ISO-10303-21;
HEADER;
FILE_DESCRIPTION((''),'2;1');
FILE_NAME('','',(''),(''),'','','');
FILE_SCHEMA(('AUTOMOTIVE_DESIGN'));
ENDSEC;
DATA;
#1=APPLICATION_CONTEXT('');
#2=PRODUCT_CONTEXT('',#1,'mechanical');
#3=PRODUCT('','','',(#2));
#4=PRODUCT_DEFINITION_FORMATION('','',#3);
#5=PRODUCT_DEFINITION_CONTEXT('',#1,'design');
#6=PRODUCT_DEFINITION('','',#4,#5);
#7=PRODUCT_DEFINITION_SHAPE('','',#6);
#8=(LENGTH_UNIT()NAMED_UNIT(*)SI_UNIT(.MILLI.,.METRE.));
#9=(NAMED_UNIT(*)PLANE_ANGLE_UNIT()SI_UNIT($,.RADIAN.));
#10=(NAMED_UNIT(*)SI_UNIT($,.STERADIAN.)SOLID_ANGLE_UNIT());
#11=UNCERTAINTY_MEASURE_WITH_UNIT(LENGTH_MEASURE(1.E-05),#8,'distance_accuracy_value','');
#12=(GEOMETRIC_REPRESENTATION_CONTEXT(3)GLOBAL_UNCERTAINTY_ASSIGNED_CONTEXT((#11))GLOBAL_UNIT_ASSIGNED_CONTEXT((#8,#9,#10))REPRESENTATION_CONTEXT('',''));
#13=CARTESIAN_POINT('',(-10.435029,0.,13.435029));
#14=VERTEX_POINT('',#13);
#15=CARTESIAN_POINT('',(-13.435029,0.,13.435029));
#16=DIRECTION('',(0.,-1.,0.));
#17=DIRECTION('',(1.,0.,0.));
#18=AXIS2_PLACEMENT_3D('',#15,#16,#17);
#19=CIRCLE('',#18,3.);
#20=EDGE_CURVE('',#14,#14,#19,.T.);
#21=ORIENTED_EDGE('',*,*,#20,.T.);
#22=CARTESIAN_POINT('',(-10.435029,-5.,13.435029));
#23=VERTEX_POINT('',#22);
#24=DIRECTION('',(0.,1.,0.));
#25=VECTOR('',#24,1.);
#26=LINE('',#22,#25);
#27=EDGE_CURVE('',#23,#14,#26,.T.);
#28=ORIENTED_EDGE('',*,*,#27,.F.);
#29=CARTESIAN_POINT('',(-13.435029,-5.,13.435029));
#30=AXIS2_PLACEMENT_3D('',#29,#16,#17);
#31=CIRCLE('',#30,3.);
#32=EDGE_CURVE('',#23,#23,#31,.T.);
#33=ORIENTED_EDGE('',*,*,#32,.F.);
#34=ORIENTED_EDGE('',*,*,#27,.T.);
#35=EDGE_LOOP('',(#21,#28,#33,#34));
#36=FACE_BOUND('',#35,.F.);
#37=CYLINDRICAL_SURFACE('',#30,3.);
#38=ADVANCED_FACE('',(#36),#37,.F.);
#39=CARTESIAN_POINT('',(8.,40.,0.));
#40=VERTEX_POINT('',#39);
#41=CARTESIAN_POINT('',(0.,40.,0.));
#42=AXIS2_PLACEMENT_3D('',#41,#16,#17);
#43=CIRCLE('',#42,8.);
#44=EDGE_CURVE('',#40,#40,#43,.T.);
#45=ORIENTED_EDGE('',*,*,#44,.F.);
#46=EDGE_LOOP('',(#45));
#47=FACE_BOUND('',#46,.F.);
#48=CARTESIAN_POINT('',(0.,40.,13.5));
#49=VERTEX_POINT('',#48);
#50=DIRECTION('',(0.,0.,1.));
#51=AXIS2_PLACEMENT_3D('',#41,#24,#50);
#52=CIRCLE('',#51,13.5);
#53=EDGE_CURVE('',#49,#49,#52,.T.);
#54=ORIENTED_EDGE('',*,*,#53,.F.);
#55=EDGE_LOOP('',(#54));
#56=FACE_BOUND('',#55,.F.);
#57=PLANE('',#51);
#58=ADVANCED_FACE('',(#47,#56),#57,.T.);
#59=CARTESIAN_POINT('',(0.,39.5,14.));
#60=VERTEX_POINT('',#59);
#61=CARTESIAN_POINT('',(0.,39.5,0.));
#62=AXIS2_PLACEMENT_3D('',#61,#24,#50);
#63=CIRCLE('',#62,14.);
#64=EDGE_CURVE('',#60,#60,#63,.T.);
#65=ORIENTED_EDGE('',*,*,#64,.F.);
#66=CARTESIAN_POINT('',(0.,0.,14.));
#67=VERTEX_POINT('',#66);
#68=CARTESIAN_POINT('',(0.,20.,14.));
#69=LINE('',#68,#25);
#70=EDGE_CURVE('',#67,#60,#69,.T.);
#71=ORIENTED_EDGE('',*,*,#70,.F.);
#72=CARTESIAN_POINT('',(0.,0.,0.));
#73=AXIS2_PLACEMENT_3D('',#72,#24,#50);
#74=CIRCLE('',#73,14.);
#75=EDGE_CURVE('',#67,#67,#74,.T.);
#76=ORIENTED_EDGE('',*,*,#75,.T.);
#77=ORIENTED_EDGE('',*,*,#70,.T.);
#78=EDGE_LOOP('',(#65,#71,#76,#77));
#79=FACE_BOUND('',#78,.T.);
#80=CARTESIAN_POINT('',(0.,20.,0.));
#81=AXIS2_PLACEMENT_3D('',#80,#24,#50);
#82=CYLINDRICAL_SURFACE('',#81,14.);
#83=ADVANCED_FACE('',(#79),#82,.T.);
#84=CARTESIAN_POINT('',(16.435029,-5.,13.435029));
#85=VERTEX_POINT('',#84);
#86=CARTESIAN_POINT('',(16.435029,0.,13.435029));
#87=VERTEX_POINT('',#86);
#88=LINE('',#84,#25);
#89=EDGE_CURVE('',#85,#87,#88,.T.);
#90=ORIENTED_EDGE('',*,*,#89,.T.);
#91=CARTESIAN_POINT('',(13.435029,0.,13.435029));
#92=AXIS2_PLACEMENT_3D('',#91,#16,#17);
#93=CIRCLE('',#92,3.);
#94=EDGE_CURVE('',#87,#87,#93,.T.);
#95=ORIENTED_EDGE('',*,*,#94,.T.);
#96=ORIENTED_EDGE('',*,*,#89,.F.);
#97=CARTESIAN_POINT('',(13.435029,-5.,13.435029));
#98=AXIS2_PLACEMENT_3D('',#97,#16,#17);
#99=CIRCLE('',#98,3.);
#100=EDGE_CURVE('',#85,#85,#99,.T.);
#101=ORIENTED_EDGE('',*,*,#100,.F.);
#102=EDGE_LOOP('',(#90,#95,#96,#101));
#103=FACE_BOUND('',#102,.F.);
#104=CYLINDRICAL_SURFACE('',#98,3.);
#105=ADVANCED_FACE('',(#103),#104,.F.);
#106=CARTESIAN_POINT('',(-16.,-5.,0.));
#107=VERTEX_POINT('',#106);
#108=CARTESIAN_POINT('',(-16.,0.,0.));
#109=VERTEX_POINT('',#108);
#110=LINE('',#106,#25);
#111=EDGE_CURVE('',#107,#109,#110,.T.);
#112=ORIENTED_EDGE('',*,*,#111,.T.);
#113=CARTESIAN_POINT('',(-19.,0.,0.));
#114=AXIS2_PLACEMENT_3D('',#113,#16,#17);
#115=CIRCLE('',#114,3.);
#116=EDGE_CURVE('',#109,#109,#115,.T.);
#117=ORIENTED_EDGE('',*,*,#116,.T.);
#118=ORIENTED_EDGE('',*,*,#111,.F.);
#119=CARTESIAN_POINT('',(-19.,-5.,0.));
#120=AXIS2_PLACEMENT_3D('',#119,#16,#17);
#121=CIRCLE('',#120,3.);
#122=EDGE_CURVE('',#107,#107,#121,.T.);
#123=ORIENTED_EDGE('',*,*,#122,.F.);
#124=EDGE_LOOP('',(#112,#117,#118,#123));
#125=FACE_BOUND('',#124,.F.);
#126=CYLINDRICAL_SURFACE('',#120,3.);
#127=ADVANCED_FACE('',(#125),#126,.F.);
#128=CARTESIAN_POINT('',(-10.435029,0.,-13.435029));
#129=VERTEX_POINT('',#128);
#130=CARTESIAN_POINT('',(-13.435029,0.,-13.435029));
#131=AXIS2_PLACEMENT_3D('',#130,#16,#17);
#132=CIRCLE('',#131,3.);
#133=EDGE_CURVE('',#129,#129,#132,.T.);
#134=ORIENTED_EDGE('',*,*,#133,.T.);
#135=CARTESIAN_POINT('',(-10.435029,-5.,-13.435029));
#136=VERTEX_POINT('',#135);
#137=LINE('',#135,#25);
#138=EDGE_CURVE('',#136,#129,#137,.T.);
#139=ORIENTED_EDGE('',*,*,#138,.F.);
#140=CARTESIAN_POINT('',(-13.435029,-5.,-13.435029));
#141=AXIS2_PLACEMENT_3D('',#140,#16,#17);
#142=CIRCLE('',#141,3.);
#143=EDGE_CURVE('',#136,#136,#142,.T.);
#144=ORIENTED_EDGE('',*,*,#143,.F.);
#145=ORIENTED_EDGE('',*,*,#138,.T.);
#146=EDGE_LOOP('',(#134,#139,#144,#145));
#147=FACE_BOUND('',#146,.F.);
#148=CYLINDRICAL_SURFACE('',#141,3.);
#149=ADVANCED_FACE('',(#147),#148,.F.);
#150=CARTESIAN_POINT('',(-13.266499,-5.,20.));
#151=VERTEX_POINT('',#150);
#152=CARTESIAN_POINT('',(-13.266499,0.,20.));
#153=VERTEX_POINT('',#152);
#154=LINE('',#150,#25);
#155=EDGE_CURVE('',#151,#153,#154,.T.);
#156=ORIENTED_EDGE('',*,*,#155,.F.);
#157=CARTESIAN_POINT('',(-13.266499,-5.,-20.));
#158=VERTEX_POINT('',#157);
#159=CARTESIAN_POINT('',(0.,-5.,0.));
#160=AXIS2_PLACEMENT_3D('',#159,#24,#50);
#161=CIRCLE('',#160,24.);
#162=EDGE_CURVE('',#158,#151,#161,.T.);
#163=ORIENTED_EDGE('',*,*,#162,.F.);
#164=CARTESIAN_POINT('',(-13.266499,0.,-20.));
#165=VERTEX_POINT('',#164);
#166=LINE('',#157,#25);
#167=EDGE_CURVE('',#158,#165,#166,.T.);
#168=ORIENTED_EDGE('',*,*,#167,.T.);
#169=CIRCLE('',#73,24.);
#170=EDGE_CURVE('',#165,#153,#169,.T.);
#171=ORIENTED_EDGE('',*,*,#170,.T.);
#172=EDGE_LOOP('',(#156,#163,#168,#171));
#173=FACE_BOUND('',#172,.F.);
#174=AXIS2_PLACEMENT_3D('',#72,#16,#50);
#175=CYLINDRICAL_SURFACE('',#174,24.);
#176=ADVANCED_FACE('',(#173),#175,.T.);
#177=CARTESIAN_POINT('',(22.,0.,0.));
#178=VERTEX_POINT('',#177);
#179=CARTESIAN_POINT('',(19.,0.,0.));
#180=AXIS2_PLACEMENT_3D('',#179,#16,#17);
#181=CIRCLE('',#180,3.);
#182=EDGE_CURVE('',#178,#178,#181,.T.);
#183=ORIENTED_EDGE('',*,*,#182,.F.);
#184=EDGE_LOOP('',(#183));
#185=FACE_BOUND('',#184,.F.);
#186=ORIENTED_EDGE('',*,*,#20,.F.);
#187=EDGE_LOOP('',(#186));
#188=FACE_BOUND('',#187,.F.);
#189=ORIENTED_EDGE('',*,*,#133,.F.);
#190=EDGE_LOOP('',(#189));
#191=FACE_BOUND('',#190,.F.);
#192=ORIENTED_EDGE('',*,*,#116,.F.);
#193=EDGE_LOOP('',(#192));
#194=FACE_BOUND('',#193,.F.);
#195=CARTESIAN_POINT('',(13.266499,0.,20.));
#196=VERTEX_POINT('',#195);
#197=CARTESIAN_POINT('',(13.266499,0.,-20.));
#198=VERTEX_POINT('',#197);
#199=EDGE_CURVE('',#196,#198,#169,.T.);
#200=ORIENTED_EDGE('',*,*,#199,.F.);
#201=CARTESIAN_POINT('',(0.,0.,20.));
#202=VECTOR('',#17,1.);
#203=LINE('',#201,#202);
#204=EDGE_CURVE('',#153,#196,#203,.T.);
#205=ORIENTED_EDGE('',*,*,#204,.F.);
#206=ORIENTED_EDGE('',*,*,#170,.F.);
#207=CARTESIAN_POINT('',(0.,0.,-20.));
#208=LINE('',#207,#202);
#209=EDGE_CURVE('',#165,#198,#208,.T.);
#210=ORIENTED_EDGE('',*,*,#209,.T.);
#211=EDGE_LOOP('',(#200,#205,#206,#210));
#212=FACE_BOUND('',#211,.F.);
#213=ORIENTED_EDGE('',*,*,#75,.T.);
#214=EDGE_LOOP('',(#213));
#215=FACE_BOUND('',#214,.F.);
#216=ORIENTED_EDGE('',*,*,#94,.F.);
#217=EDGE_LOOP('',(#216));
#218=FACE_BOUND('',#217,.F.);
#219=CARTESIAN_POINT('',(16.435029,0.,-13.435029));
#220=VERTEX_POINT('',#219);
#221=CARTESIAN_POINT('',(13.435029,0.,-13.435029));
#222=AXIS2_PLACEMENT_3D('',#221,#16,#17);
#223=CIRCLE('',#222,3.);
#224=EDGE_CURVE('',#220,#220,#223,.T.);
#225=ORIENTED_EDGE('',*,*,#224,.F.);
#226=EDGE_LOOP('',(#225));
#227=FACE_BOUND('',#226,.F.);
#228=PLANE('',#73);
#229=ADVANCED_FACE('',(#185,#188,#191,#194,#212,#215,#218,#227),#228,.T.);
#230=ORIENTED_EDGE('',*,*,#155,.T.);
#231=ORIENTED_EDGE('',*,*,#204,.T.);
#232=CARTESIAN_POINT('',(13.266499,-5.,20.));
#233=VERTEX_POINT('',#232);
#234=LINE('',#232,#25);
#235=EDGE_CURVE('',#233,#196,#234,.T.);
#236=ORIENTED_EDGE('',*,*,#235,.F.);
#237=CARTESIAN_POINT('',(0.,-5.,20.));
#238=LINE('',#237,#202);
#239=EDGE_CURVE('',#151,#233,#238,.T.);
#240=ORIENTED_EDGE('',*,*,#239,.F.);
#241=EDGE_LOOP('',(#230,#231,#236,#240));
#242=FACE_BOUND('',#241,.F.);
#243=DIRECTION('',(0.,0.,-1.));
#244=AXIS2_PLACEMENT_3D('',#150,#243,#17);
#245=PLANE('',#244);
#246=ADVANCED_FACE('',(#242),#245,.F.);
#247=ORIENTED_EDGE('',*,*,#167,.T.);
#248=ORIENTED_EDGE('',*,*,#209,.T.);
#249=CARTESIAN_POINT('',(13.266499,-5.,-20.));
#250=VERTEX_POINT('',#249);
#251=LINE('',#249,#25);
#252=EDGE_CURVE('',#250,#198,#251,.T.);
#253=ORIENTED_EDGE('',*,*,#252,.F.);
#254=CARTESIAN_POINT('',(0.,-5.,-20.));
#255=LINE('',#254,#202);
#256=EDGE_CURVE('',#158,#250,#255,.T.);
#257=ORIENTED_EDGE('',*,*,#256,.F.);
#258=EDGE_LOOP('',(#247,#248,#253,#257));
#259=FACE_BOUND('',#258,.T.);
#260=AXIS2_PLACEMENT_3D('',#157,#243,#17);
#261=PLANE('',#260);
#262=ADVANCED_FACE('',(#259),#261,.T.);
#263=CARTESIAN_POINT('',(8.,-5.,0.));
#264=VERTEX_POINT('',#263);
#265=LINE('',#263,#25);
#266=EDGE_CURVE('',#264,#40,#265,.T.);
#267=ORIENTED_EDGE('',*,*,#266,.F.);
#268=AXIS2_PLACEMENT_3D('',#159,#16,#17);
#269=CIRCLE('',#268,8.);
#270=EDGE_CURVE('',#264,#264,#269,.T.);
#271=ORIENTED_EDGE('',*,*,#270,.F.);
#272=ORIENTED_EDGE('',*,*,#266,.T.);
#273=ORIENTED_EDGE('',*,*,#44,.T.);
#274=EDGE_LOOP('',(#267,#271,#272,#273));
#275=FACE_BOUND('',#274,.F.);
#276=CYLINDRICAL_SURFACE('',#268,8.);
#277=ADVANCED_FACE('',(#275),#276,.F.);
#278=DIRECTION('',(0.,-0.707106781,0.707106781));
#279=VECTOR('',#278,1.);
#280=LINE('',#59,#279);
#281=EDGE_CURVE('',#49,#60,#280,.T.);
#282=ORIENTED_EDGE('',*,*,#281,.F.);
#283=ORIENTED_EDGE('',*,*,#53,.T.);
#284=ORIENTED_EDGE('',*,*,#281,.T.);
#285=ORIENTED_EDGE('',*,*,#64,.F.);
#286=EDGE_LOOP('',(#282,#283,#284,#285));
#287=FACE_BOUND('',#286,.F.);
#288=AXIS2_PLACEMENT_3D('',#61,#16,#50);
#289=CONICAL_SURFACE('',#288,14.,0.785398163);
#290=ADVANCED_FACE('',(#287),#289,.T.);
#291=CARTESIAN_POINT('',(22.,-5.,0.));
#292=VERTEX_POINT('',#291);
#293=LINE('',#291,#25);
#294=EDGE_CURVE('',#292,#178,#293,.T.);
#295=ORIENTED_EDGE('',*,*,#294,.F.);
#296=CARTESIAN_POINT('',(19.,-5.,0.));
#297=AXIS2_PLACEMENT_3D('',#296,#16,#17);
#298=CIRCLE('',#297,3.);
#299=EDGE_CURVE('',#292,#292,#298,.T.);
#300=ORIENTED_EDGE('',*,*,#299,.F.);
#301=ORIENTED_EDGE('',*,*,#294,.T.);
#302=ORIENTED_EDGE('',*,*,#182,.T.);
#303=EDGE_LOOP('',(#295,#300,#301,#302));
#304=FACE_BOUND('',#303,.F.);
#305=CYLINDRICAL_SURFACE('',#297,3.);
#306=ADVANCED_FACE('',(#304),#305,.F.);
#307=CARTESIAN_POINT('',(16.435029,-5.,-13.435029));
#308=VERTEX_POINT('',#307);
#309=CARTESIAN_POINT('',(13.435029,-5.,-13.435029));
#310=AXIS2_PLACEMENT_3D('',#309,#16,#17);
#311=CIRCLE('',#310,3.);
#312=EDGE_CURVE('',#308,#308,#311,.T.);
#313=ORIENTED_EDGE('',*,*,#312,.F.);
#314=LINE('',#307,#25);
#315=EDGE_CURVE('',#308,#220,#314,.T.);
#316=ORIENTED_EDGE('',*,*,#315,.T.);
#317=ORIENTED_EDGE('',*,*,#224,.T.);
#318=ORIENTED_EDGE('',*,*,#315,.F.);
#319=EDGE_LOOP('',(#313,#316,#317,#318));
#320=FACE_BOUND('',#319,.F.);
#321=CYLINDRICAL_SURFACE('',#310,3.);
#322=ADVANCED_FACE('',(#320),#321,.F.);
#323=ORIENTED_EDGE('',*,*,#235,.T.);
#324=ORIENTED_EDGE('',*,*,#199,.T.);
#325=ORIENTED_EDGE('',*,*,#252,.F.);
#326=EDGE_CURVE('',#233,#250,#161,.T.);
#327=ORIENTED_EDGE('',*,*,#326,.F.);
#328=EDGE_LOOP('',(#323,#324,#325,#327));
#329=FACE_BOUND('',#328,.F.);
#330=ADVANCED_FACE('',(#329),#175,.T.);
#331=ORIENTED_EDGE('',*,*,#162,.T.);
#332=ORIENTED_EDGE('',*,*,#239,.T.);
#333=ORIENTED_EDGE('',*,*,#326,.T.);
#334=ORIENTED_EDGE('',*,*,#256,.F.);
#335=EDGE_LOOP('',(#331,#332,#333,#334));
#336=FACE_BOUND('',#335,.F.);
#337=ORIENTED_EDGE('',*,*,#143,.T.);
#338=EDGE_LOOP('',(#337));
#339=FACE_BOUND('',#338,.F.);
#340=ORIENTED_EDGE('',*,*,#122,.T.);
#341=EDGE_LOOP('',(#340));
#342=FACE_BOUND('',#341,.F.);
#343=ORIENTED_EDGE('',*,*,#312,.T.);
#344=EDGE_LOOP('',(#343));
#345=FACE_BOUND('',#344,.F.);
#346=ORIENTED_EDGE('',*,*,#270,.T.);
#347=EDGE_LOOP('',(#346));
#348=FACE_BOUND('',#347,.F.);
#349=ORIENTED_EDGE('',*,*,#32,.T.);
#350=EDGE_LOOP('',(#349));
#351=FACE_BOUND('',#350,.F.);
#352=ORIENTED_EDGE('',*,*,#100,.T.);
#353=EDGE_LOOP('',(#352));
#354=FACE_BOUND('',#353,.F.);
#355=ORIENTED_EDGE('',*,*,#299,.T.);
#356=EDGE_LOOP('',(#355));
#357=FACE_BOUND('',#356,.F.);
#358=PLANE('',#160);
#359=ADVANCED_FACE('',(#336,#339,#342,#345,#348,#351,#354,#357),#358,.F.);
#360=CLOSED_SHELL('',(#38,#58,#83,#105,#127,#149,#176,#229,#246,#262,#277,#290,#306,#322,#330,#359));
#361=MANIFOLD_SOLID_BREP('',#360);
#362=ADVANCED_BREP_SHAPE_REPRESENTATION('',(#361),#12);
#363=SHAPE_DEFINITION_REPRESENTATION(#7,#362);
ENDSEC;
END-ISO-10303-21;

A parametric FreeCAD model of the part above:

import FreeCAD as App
import Part
import Sketcher
Q = App.Units.Quantity


def edges_at(feature, points):
    """Names of the edges that pass closest to the given points."""
    edges = feature.Shape.Edges
    near = lambda p: min(range(len(edges)), key=lambda i: edges[i].distToShape(Part.Vertex(*p))[0])
    return sorted({f"Edge{near(p) + 1}" for p in points})

doc = App.newDocument("Part")
body = doc.addObject("PartDesign::Body", "Body")

# Sketch on YZ plane
sketch1 = body.newObject("Sketcher::SketchObject", "Sketch")
sketch1.AttachmentSupport = (doc.getObject("YZ_Plane"), [""])
sketch1.MapMode = "FlatFace"
sketch1.addGeometry(Part.LineSegment(App.Vector(40, 0, 0), App.Vector(40, 14, 0)), False)
sketch1.addGeometry(Part.LineSegment(App.Vector(40, 14, 0), App.Vector(0, 14, 0)), False)
sketch1.addGeometry(Part.LineSegment(App.Vector(0, 14, 0), App.Vector(0, 24, 0)), False)
sketch1.addGeometry(Part.LineSegment(App.Vector(0, 24, 0), App.Vector(-5, 24, 0)), False)
sketch1.addGeometry(Part.LineSegment(App.Vector(-5, 24, 0), App.Vector(-5, 0, 0)), False)
sketch1.addGeometry(Part.LineSegment(App.Vector(-5, 0, 0), App.Vector(40, 0, 0)), False)
sketch1.addConstraint(Sketcher.Constraint("Coincident", 0, 2, 1, 1))
sketch1.addConstraint(Sketcher.Constraint("Coincident", 1, 2, 2, 1))
sketch1.addConstraint(Sketcher.Constraint("Coincident", 2, 2, 3, 1))
sketch1.addConstraint(Sketcher.Constraint("Coincident", 3, 2, 4, 1))
sketch1.addConstraint(Sketcher.Constraint("Coincident", 4, 2, 5, 1))
sketch1.addConstraint(Sketcher.Constraint("Coincident", 5, 2, 0, 1))
sketch1.addConstraint(Sketcher.Constraint("Vertical", 0))
sketch1.addConstraint(Sketcher.Constraint("Horizontal", 1))
sketch1.addConstraint(Sketcher.Constraint("Vertical", 2))
sketch1.addConstraint(Sketcher.Constraint("Horizontal", 3))
sketch1.addConstraint(Sketcher.Constraint("Vertical", 4))
sketch1.addConstraint(Sketcher.Constraint("Horizontal", 5))
sketch1.addConstraint(Sketcher.Constraint("PointOnObject", 1, 2, -2))
sketch1.addConstraint(Sketcher.Constraint("PointOnObject", 4, 2, -1))
sketch1.addConstraint(Sketcher.Constraint("DistanceX", 1, 2, 1, 1, Q("40 mm")))
sketch1.addConstraint(Sketcher.Constraint("DistanceX", 3, 2, 3, 1, Q("5 mm")))
sketch1.addConstraint(Sketcher.Constraint("DistanceY", 0, 1, 0, 2, Q("14 mm")))
sketch1.addConstraint(Sketcher.Constraint("DistanceY", 2, 1, 2, 2, Q("10 mm")))
revolution = body.newObject("PartDesign::Revolution", "Revolution")
revolution.Profile = sketch1
revolution.ReferenceAxis = (sketch1, ["H_Axis"])
revolution.Angle = 360

# Sketch on XZ plane
sketch2 = body.newObject("Sketcher::SketchObject", "Sketch001")
sketch2.AttachmentSupport = (doc.getObject("XZ_Plane"), [""])
sketch2.MapMode = "FlatFace"
sketch2.AttachmentOffset = App.Placement(App.Vector(0, 0, 5), App.Rotation())
sketch2.addGeometry(Part.LineSegment(App.Vector(-13, 28, 0), App.Vector(-13, 20, 0)), False)
sketch2.addGeometry(Part.LineSegment(App.Vector(-13, 20, 0), App.Vector(13, 20, 0)), False)
sketch2.addGeometry(Part.LineSegment(App.Vector(13, 20, 0), App.Vector(13, 28, 0)), False)
sketch2.addGeometry(Part.LineSegment(App.Vector(13, 28, 0), App.Vector(-13, 28, 0)), False)
sketch2.addGeometry(Part.LineSegment(App.Vector(-13, -20, 0), App.Vector(-13, -30, 0)), False)
sketch2.addGeometry(Part.LineSegment(App.Vector(-13, -30, 0), App.Vector(13, -30, 0)), False)
sketch2.addGeometry(Part.LineSegment(App.Vector(13, -30, 0), App.Vector(13, -20, 0)), False)
sketch2.addGeometry(Part.LineSegment(App.Vector(13, -20, 0), App.Vector(-13, -20, 0)), False)
sketch2.addConstraint(Sketcher.Constraint("Coincident", 0, 2, 1, 1))
sketch2.addConstraint(Sketcher.Constraint("Coincident", 1, 2, 2, 1))
sketch2.addConstraint(Sketcher.Constraint("Coincident", 2, 2, 3, 1))
sketch2.addConstraint(Sketcher.Constraint("Coincident", 3, 2, 0, 1))
sketch2.addConstraint(Sketcher.Constraint("Coincident", 4, 2, 5, 1))
sketch2.addConstraint(Sketcher.Constraint("Coincident", 5, 2, 6, 1))
sketch2.addConstraint(Sketcher.Constraint("Coincident", 6, 2, 7, 1))
sketch2.addConstraint(Sketcher.Constraint("Coincident", 7, 2, 4, 1))
sketch2.addConstraint(Sketcher.Constraint("Vertical", 0))
sketch2.addConstraint(Sketcher.Constraint("Horizontal", 1))
sketch2.addConstraint(Sketcher.Constraint("Vertical", 2))
sketch2.addConstraint(Sketcher.Constraint("Horizontal", 3))
sketch2.addConstraint(Sketcher.Constraint("Vertical", 4))
sketch2.addConstraint(Sketcher.Constraint("Horizontal", 5))
sketch2.addConstraint(Sketcher.Constraint("Vertical", 6))
sketch2.addConstraint(Sketcher.Constraint("Horizontal", 7))
sketch2.addConstraint(Sketcher.Constraint("Symmetric", 0, 2, 6, 2, -1, 1))
sketch2.addConstraint(Sketcher.Constraint("Vertical", 3, 2, 4, 2))
sketch2.addConstraint(Sketcher.Constraint("Vertical", 2, 2, 5, 2))
sketch2.addConstraint(Sketcher.Constraint("DistanceY", -1, 1, 0, 2, Q("20 mm")))
sketch2.addConstraint(Sketcher.Constraint("DistanceY", 4, 2, 4, 1, Q("9.77986 mm")))
sketch2.addConstraint(Sketcher.Constraint("DistanceX", 0, 2, -1, 1, Q("13.266499 mm")))
sketch2.addConstraint(Sketcher.Constraint("DistanceY", 0, 2, 0, 1, Q("7.604173 mm")))
pocket1 = body.newObject("PartDesign::Pocket", "Pocket")
pocket1.Profile = sketch2
pocket1.Length = 5

# Sketch on XZ plane
sketch3 = body.newObject("Sketcher::SketchObject", "Sketch002")
sketch3.AttachmentSupport = (doc.getObject("XZ_Plane"), [""])
sketch3.MapMode = "FlatFace"
sketch3.AttachmentOffset = App.Placement(App.Vector(0, 0, 5), App.Rotation())
sketch3.addGeometry(Part.Circle(App.Vector(0, 0, 0), App.Vector(0, 0, 1), 8), False)
sketch3.addConstraint(Sketcher.Constraint("Coincident", 0, 3, -1, 1))
sketch3.addConstraint(Sketcher.Constraint("Diameter", 0, Q("16 mm")))
pocket2 = body.newObject("PartDesign::Pocket", "Pocket001")
pocket2.Profile = sketch3
pocket2.Length = 45

# Sketch on XZ plane
sketch4 = body.newObject("Sketcher::SketchObject", "Sketch003")
sketch4.AttachmentSupport = (doc.getObject("XZ_Plane"), [""])
sketch4.MapMode = "FlatFace"
sketch4.AttachmentOffset = App.Placement(App.Vector(0, 0, 5), App.Rotation())
sketch4.addGeometry(Part.Circle(App.Vector(-13.4, 13.4, 0), App.Vector(0, 0, 1), 3), False)
sketch4.addGeometry(Part.Circle(App.Vector(13.4, 13.4, 0), App.Vector(0, 0, 1), 3), False)
sketch4.addGeometry(Part.Circle(App.Vector(13.4, -13.4, 0), App.Vector(0, 0, 1), 3), False)
sketch4.addGeometry(Part.Circle(App.Vector(-13.4, -13.4, 0), App.Vector(0, 0, 1), 3), False)
sketch4.addGeometry(Part.Circle(App.Vector(-19, 0, 0), App.Vector(0, 0, 1), 3), False)
sketch4.addGeometry(Part.Circle(App.Vector(19, 0, 0), App.Vector(0, 0, 1), 3), False)
sketch4.addConstraint(Sketcher.Constraint("Equal", 0, 1))
sketch4.addConstraint(Sketcher.Constraint("Equal", 1, 2))
sketch4.addConstraint(Sketcher.Constraint("Equal", 2, 3))
sketch4.addConstraint(Sketcher.Constraint("Equal", 3, 4))
sketch4.addConstraint(Sketcher.Constraint("Equal", 4, 5))
sketch4.addConstraint(Sketcher.Constraint("Symmetric", 0, 3, 2, 3, -1, 1))
sketch4.addConstraint(Sketcher.Constraint("Symmetric", 1, 3, 3, 3, -1, 1))
sketch4.addConstraint(Sketcher.Constraint("Symmetric", 4, 3, 5, 3, -1, 1))
sketch4.addConstraint(Sketcher.Constraint("Symmetric", 0, 3, 1, 3, -2))
sketch4.addConstraint(Sketcher.Constraint("PointOnObject", 4, 3, -1))
sketch4.addConstraint(Sketcher.Constraint("Diameter", 0, Q("6 mm")))
sketch4.addConstraint(Sketcher.Constraint("DistanceX", 4, 3, -1, 1, Q("19 mm")))
sketch4.addConstraint(Sketcher.Constraint("DistanceX", 0, 3, -1, 1, Q("13.435029 mm")))
sketch4.addConstraint(Sketcher.Constraint("DistanceY", -1, 1, 0, 3, Q("13.435029 mm")))
pocket3 = body.newObject("PartDesign::Pocket", "Pocket002")
pocket3.Profile = sketch4
pocket3.Length = 5
doc.recompute()

chamfer = body.newObject("PartDesign::Chamfer", "Chamfer")
chamfer.Base = (pocket3, edges_at(pocket3, [(0, 40, -14)]))
chamfer.Size = 0.5

doc.recompute()
